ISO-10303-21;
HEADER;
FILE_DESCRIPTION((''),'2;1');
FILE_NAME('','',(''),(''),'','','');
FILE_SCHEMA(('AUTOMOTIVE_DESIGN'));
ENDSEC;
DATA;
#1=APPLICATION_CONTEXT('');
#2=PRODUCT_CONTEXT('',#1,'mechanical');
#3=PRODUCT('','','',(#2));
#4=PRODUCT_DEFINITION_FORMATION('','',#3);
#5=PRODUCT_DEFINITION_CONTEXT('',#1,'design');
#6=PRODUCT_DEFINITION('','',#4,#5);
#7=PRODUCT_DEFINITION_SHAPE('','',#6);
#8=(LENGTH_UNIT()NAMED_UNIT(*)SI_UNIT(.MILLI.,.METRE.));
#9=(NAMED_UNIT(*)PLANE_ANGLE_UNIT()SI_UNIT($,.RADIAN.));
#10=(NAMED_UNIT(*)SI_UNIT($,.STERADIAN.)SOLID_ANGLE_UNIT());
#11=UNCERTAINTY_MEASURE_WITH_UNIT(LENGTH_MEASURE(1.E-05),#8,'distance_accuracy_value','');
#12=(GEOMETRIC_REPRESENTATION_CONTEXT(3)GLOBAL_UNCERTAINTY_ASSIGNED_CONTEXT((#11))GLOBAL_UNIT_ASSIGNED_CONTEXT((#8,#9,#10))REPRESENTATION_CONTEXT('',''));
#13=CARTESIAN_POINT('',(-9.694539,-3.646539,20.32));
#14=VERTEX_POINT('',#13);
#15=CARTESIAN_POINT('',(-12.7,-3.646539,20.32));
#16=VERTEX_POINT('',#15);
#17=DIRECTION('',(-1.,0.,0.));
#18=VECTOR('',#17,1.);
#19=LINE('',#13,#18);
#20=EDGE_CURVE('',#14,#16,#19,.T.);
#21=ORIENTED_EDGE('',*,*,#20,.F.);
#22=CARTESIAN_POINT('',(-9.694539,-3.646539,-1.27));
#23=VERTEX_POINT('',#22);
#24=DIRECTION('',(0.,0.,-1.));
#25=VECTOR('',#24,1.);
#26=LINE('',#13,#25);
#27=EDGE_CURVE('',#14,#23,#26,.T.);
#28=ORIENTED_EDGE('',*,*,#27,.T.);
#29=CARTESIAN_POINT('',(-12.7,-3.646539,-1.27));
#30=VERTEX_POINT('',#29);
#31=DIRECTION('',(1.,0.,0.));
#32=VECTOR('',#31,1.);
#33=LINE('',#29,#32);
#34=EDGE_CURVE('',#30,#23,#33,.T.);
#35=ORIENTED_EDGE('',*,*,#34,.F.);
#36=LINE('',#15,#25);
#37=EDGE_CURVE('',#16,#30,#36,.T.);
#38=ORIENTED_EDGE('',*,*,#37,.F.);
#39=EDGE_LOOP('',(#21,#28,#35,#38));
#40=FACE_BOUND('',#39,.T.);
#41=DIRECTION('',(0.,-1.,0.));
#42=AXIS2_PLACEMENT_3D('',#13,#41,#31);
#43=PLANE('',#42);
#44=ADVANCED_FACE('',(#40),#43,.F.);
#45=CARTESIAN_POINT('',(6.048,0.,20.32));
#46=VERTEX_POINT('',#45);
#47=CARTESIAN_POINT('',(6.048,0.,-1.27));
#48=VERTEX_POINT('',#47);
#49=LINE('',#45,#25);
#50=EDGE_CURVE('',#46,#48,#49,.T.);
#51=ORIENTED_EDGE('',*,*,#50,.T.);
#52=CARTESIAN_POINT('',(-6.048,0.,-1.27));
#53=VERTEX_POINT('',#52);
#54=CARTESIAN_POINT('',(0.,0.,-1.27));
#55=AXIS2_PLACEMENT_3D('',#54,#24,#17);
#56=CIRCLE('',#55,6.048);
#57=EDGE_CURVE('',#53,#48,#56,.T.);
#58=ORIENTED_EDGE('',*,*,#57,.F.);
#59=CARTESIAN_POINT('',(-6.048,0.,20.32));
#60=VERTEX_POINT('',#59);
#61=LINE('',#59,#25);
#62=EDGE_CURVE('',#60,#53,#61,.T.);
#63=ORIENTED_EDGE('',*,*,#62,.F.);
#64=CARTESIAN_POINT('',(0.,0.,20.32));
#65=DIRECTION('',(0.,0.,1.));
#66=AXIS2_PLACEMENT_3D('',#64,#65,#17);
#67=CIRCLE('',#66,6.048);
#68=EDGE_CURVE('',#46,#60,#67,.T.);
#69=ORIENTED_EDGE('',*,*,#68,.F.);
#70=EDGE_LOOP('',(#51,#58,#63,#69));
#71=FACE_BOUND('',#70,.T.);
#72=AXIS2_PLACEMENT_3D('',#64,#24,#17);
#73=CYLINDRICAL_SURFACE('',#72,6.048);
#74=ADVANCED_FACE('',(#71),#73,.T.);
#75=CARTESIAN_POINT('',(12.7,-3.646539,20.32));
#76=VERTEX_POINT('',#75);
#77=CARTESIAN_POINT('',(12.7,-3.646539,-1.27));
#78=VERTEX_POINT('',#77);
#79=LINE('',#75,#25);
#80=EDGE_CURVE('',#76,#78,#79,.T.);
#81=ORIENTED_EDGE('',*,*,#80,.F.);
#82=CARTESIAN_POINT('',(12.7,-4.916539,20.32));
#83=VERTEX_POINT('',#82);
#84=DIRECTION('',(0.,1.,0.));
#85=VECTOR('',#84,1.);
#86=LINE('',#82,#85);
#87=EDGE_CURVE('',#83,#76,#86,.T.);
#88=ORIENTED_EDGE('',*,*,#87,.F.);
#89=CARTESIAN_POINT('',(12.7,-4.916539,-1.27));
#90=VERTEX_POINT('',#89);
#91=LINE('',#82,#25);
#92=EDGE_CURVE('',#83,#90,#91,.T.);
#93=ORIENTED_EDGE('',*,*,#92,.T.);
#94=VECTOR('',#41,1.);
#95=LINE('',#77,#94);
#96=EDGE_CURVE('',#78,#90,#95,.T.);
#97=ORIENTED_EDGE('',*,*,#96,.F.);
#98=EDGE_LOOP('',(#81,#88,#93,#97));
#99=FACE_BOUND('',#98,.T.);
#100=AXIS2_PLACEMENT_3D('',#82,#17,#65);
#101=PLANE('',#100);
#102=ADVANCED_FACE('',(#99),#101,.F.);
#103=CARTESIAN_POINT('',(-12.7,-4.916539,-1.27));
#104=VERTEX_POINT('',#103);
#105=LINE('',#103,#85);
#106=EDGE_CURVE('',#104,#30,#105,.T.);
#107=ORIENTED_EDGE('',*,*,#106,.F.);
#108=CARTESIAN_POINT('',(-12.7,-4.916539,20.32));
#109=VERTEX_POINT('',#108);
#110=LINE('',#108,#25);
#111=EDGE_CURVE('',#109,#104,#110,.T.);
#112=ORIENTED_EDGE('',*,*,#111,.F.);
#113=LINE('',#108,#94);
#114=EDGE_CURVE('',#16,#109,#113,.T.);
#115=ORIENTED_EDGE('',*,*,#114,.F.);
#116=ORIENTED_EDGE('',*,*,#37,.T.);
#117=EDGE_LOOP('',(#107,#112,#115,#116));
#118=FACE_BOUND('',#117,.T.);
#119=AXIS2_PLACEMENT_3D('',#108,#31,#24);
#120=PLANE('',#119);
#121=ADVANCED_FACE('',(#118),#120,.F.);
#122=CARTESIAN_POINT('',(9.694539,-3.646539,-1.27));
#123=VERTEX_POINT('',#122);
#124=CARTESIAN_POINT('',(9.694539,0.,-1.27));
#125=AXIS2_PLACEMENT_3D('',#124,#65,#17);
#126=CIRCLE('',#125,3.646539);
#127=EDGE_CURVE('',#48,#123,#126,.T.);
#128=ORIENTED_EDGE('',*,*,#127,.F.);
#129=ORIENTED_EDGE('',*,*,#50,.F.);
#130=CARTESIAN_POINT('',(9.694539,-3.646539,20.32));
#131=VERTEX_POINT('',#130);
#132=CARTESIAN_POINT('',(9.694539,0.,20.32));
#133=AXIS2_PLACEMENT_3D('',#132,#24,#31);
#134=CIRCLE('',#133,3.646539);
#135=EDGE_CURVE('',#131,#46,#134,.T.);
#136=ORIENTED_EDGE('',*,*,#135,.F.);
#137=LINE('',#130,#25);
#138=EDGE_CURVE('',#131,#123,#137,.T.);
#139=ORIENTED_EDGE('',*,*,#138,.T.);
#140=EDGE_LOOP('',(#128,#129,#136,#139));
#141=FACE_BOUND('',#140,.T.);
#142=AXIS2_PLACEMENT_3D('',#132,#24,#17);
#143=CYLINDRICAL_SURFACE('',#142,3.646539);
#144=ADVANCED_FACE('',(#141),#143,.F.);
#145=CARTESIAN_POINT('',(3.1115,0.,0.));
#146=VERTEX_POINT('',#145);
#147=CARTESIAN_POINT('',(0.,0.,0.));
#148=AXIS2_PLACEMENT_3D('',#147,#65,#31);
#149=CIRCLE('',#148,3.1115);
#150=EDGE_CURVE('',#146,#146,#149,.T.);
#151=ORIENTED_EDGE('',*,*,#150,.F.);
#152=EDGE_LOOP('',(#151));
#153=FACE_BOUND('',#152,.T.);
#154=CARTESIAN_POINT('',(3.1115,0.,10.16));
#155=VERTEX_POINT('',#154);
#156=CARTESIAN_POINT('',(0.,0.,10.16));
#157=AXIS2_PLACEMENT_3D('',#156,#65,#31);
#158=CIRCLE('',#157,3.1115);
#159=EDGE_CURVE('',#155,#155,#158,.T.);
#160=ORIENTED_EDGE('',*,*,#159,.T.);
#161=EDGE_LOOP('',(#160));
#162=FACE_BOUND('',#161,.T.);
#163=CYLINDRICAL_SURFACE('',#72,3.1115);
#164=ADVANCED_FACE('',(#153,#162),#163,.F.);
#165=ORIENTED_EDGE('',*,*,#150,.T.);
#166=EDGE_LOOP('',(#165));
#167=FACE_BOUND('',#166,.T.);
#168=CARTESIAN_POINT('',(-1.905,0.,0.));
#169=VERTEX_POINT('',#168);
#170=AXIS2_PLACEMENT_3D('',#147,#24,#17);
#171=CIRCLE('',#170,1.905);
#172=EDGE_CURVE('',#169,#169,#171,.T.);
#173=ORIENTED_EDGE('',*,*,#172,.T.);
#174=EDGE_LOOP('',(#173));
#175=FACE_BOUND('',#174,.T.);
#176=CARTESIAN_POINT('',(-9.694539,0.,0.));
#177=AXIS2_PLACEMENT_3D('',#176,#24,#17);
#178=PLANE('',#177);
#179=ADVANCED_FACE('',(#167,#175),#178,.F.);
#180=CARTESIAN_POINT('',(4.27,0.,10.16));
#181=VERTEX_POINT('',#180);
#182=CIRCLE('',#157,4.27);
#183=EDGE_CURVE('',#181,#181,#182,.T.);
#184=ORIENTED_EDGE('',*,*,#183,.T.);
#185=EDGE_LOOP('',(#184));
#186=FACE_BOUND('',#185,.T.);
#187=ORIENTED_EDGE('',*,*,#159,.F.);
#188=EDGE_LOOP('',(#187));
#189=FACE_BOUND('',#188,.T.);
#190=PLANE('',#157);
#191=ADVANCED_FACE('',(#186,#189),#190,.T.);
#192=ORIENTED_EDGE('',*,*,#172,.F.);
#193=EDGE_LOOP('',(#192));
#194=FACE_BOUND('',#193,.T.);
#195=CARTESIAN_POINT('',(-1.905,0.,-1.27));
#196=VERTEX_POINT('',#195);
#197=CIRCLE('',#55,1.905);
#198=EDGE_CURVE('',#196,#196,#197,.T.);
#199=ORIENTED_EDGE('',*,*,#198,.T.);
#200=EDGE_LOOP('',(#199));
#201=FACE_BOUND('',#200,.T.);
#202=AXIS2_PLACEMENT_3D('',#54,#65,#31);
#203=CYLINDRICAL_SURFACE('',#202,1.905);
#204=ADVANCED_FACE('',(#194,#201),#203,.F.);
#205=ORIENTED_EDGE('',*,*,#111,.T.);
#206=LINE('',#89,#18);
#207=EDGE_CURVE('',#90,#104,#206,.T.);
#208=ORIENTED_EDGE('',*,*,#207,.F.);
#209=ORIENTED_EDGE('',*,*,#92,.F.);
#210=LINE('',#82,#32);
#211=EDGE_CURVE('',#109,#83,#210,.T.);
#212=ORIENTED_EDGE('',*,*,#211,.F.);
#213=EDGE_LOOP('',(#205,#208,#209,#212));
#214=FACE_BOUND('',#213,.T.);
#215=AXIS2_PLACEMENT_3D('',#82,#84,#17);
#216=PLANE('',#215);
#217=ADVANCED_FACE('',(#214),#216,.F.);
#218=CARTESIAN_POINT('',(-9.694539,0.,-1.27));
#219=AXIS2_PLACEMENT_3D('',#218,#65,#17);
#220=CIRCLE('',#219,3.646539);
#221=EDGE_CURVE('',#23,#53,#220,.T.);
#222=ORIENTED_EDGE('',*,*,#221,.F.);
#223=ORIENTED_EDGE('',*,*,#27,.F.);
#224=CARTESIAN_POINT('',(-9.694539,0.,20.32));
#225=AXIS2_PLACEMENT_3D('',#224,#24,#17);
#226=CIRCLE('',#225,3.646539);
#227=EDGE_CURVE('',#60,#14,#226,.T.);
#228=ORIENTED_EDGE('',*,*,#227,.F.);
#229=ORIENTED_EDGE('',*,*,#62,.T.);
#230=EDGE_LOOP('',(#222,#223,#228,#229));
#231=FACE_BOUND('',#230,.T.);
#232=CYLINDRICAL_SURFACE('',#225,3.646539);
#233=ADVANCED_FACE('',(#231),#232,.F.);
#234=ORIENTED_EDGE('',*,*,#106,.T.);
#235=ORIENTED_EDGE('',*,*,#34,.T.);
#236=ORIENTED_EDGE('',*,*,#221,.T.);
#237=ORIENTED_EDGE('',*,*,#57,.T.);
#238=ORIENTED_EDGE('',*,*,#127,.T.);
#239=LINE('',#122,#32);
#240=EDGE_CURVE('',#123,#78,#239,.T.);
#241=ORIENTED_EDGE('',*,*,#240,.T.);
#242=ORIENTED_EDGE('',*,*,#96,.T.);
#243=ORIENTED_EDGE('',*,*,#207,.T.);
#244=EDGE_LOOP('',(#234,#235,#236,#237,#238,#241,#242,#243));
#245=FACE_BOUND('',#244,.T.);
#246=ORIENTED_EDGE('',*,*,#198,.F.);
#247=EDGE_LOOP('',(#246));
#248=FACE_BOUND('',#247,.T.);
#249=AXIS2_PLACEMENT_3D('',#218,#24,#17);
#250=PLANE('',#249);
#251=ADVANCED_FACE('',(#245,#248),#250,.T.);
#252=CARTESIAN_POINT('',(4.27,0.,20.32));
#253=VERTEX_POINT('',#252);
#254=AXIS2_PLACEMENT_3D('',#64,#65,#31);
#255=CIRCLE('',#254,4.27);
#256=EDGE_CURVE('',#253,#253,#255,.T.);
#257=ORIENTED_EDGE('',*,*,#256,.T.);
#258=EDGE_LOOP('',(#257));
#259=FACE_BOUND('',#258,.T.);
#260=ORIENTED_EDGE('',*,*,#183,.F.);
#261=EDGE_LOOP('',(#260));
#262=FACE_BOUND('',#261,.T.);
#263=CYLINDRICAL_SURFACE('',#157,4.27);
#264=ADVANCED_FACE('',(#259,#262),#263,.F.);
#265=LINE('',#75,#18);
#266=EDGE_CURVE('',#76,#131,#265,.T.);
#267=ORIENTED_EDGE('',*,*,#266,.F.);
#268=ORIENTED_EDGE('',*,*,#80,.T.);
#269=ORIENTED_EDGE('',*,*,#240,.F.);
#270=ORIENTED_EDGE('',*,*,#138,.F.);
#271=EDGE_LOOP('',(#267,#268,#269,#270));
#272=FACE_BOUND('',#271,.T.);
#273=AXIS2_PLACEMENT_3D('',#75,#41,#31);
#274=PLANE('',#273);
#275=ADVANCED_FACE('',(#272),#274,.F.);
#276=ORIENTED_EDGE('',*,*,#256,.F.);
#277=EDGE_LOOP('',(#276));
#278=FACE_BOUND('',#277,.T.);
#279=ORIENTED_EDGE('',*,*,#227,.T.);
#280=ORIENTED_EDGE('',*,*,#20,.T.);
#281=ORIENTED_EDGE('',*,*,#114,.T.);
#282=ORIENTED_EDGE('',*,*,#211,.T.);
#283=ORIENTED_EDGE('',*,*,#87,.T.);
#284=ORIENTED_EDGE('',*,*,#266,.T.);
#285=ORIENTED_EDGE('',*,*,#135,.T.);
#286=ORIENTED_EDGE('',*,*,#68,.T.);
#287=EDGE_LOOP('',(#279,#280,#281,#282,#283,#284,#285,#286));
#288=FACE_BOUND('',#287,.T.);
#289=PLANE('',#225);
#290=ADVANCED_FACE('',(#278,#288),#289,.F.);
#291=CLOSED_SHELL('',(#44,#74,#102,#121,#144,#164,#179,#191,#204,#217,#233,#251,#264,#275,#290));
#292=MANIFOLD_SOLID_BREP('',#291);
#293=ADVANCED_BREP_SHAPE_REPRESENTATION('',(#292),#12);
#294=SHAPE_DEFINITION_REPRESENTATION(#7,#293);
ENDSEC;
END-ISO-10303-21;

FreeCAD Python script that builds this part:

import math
import FreeCAD as App
import Part
import Sketcher
Q = App.Units.Quantity

doc = App.newDocument("Part")
body = doc.addObject("PartDesign::Body", "Body")

# Sketch on XY plane
sketch1 = body.newObject("Sketcher::SketchObject", "Sketch")
sketch1.AttachmentSupport = (doc.getObject("XY_Plane"), [""])
sketch1.MapMode = "FlatFace"
sketch1.addGeometry([
    Part.LineSegment(App.Vector(-9.7, -3.6, 0), App.Vector(-12.7, -3.6, 0)),  # 0
    Part.LineSegment(App.Vector(-12.7, -3.6, 0), App.Vector(-12.7, -4.9, 0)),  # 1
    Part.LineSegment(App.Vector(-12.7, -4.9, 0), App.Vector(12.7, -4.9, 0)),  # 2
    Part.LineSegment(App.Vector(12.7, -4.9, 0), App.Vector(12.7, -3.6, 0)),  # 3
    Part.LineSegment(App.Vector(12.7, -3.6, 0), App.Vector(9.7, -3.6, 0)),  # 4
    Part.ArcOfCircle(Part.Circle(App.Vector(9.7, 0, 0), App.Vector(0, 0, 1), 3.6), math.radians(-180), math.radians(-90)),  # 5
    Part.ArcOfCircle(Part.Circle(App.Vector(0, 0, 0), App.Vector(0, 0, 1), 6), math.radians(0), math.radians(180)),  # 6
    Part.ArcOfCircle(Part.Circle(App.Vector(-9.7, 0, 0), App.Vector(0, 0, 1), 3.6), math.radians(-90), math.radians(0)),  # 7
    Part.Circle(App.Vector(0, 0, 0), App.Vector(0, 0, 1), 3.1),  # 8
], False)
sketch1.addConstraint([
    Sketcher.Constraint("Coincident", 0, 2, 1, 1),
    Sketcher.Constraint("Coincident", 1, 2, 2, 1),
    Sketcher.Constraint("Coincident", 2, 2, 3, 1),
    Sketcher.Constraint("Coincident", 3, 2, 4, 1),
    Sketcher.Constraint("Tangent", 4, 2, 5, 2),
    Sketcher.Constraint("Tangent", 5, 1, 6, 1),
    Sketcher.Constraint("Tangent", 6, 2, 7, 2),
    Sketcher.Constraint("Tangent", 7, 1, 0, 1),
    Sketcher.Constraint("Horizontal", 0),
    Sketcher.Constraint("Vertical", 1),
    Sketcher.Constraint("Horizontal", 2),
    Sketcher.Constraint("Vertical", 3),
    Sketcher.Constraint("Horizontal", 4),
    Sketcher.Constraint("Coincident", 6, 3, -1, 1),
    Sketcher.Constraint("Coincident", 8, 3, -1, 1),
    Sketcher.Constraint("Equal", 5, 7),
    Sketcher.Constraint("Symmetric", 0, 2, 3, 2, -2),
    Sketcher.Constraint("PointOnObject", 5, 3, -1),
    Sketcher.Constraint("DistanceX", 2, 1, 2, 2, Q("1 in")),
    Sketcher.Constraint("Diameter", 8, Q("0.245 in")),
    Sketcher.Constraint("DistanceY", 1, 2, 1, 1, Q("0.05 in")),
    Sketcher.Constraint("Radius", 6, Q("6.048 mm")),
    Sketcher.Constraint("Radius", 5, Q("3.646539 mm")),
])
pad1 = body.newObject("PartDesign::Pad", "Pad")
pad1.Profile = sketch1
pad1.Length = Q("0.8 in")

# Sketch on XY plane
sketch2 = body.newObject("Sketcher::SketchObject", "Sketch001")
sketch2.AttachmentSupport = (doc.getObject("XY_Plane"), [""])
sketch2.MapMode = "FlatFace"
sketch2.addGeometry([
    Part.LineSegment(App.Vector(-12.7, -4.9, 0), App.Vector(-12.7, -3.6, 0)),  # 0
    Part.LineSegment(App.Vector(-12.7, -3.6, 0), App.Vector(-9.7, -3.6, 0)),  # 1
    Part.ArcOfCircle(Part.Circle(App.Vector(-9.7, 0, 0), App.Vector(0, 0, 1), 3.6), math.radians(-90), math.radians(0)),  # 2
    Part.ArcOfCircle(Part.Circle(App.Vector(0, 0, 0), App.Vector(0, 0, 1), 6), math.radians(0), math.radians(180)),  # 3
    Part.ArcOfCircle(Part.Circle(App.Vector(9.7, 0, 0), App.Vector(0, 0, 1), 3.6), math.radians(-180), math.radians(-90)),  # 4
    Part.LineSegment(App.Vector(9.7, -3.6, 0), App.Vector(12.7, -3.6, 0)),  # 5
    Part.LineSegment(App.Vector(12.7, -3.6, 0), App.Vector(12.7, -4.9, 0)),  # 6
    Part.LineSegment(App.Vector(12.7, -4.9, 0), App.Vector(-12.7, -4.9, 0)),  # 7
    Part.Circle(App.Vector(0, 0, 0), App.Vector(0, 0, 1), 1.9),  # 8
], False)
sketch2.addConstraint([
    Sketcher.Constraint("Coincident", 0, 2, 1, 1),
    Sketcher.Constraint("Tangent", 1, 2, 2, 1),
    Sketcher.Constraint("Tangent", 2, 2, 3, 2),
    Sketcher.Constraint("Tangent", 3, 1, 4, 1),
    Sketcher.Constraint("Tangent", 4, 2, 5, 1),
    Sketcher.Constraint("Coincident", 5, 2, 6, 1),
    Sketcher.Constraint("Coincident", 6, 2, 7, 1),
    Sketcher.Constraint("Coincident", 7, 2, 0, 1),
    Sketcher.Constraint("Vertical", 0),
    Sketcher.Constraint("Horizontal", 1),
    Sketcher.Constraint("Horizontal", 5),
    Sketcher.Constraint("Vertical", 6),
    Sketcher.Constraint("Horizontal", 7),
    Sketcher.Constraint("Coincident", 3, 3, -1, 1),
    Sketcher.Constraint("Coincident", 8, 3, -1, 1),
    Sketcher.Constraint("Equal", 2, 4),
    Sketcher.Constraint("Symmetric", 0, 2, 5, 2, -2),
    Sketcher.Constraint("PointOnObject", 2, 3, -1),
    Sketcher.Constraint("Diameter", 8, Q("0.15 in")),
    Sketcher.Constraint("DistanceX", 7, 2, 7, 1, Q("1 in")),
    Sketcher.Constraint("DistanceY", 0, 1, 0, 2, Q("0.05 in")),
    Sketcher.Constraint("Radius", 3, Q("6.048 mm")),
    Sketcher.Constraint("Radius", 2, Q("3.646539 mm")),
])
pad2 = body.newObject("PartDesign::Pad", "Pad001")
pad2.Profile = sketch2
pad2.Length = Q("0.05 in")
pad2.Reversed = True

# Sketch on XY plane
sketch3 = body.newObject("Sketcher::SketchObject", "Sketch002")
sketch3.AttachmentSupport = (doc.getObject("XY_Plane"), [""])
sketch3.MapMode = "FlatFace"
sketch3.AttachmentOffset = App.Placement(App.Vector(0, 0, 0.8 * 25.4), App.Rotation())
sketch3.addGeometry(Part.Circle(App.Vector(0, 0, 0), App.Vector(0, 0, 1), 4.3), False)
sketch3.addConstraint([
    Sketcher.Constraint("Coincident", 0, 3, -1, 1),
    Sketcher.Constraint("Diameter", 0, Q("8.54 mm")),
])
pocket1 = body.newObject("PartDesign::Pocket", "Pocket")
pocket1.Profile = sketch3
pocket1.Length = Q("0.4 in")

doc.recompute()
